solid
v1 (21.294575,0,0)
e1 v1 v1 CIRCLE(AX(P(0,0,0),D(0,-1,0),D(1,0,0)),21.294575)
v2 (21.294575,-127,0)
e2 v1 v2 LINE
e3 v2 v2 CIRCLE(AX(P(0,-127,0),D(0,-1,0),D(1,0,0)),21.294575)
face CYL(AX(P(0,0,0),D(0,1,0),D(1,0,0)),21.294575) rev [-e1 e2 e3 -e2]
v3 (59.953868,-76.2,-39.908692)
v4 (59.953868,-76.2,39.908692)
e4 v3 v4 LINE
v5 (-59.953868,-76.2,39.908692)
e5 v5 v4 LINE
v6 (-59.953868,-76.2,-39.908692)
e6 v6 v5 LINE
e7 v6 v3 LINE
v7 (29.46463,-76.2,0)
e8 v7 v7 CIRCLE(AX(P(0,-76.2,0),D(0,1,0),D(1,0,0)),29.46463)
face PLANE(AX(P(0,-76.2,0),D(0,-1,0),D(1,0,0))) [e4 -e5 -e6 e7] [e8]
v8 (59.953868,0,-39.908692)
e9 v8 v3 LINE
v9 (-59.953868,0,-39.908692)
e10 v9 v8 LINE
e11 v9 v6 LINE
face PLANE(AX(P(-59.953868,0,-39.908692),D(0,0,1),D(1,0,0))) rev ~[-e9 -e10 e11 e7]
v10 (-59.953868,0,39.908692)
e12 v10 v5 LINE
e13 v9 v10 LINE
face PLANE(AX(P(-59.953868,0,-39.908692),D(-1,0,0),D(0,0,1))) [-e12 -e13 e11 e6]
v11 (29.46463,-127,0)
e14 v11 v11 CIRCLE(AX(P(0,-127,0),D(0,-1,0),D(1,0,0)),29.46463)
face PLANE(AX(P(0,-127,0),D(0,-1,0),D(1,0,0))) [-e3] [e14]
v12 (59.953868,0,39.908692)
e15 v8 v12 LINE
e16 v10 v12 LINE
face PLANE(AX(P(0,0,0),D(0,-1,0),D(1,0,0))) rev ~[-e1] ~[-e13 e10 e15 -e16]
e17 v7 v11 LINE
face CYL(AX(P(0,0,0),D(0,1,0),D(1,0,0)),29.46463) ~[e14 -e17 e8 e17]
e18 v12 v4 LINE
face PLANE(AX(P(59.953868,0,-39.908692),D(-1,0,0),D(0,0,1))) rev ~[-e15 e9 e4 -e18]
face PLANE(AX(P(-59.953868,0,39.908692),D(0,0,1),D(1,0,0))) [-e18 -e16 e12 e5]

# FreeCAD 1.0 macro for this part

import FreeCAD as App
import Part
import Sketcher
Q = App.Units.Quantity

doc = App.newDocument("Part")
body = doc.addObject("PartDesign::Body", "Body")

sketch1 = body.newObject("Sketcher::SketchObject", "Sketch")
sketch1.AttachmentSupport = (doc.getObject("XZ_Plane"), [""])
sketch1.MapMode = "FlatFace"
sketch1.addGeometry(Part.LineSegment(App.Vector(-60, 40, 0), App.Vector(-60, -40, 0)), False)
sketch1.addGeometry(Part.LineSegment(App.Vector(-60, -40, 0), App.Vector(60, -40, 0)), False)
sketch1.addGeometry(Part.LineSegment(App.Vector(60, -40, 0), App.Vector(60, 40, 0)), False)
sketch1.addGeometry(Part.LineSegment(App.Vector(60, 40, 0), App.Vector(-60, 40, 0)), False)
sketch1.addGeometry(Part.Circle(App.Vector(0, 0, 0), App.Vector(0, 0, 1), 22), False)
sketch1.addConstraint(Sketcher.Constraint("Coincident", 0, 2, 1, 1))
sketch1.addConstraint(Sketcher.Constraint("Coincident", 1, 2, 2, 1))
sketch1.addConstraint(Sketcher.Constraint("Coincident", 2, 2, 3, 1))
sketch1.addConstraint(Sketcher.Constraint("Coincident", 3, 2, 0, 1))
sketch1.addConstraint(Sketcher.Constraint("Vertical", 0))
sketch1.addConstraint(Sketcher.Constraint("Horizontal", 1))
sketch1.addConstraint(Sketcher.Constraint("Vertical", 2))
sketch1.addConstraint(Sketcher.Constraint("Horizontal", 3))
sketch1.addConstraint(Sketcher.Constraint("Coincident", 4, 3, -1, 1))
sketch1.addConstraint(Sketcher.Constraint("Symmetric", 0, 2, 2, 2, -1, 1))
sketch1.addConstraint(Sketcher.Constraint("Diameter", 4, Q("44.298026 mm")))
sketch1.addConstraint(Sketcher.Constraint("DistanceX", 1, 1, 1, 2, Q("119.907736 mm")))
sketch1.addConstraint(Sketcher.Constraint("DistanceY", 0, 2, 0, 1, Q("79.817384 mm")))
pad1 = body.newObject("PartDesign::Pad", "Pad")
pad1.Profile = sketch1
pad1.Length = Q("3 in")

sketch2 = body.newObject("Sketcher::SketchObject", "Sketch001")
sketch2.AttachmentSupport = (doc.getObject("XZ_Plane"), [""])
sketch2.MapMode = "FlatFace"
sketch2.addGeometry(Part.Circle(App.Vector(0, 0, 0), App.Vector(0, 0, 1), 29), False)
sketch2.addGeometry(Part.Circle(App.Vector(0, 0, 0), App.Vector(0, 0, 1), 21), False)
sketch2.addConstraint(Sketcher.Constraint("Coincident", 0, 3, -1, 1))
sketch2.addConstraint(Sketcher.Constraint("Coincident", 1, 3, -1, 1))
sketch2.addConstraint(Sketcher.Constraint("Diameter", 0, Q("58.92926 mm")))
sketch2.addConstraint(Sketcher.Constraint("Diameter", 1, Q("42.58915 mm")))
pad2 = body.newObject("PartDesign::Pad", "Pad001")
pad2.Profile = sketch2
pad2.Length = Q("5 in")

doc.recompute()
